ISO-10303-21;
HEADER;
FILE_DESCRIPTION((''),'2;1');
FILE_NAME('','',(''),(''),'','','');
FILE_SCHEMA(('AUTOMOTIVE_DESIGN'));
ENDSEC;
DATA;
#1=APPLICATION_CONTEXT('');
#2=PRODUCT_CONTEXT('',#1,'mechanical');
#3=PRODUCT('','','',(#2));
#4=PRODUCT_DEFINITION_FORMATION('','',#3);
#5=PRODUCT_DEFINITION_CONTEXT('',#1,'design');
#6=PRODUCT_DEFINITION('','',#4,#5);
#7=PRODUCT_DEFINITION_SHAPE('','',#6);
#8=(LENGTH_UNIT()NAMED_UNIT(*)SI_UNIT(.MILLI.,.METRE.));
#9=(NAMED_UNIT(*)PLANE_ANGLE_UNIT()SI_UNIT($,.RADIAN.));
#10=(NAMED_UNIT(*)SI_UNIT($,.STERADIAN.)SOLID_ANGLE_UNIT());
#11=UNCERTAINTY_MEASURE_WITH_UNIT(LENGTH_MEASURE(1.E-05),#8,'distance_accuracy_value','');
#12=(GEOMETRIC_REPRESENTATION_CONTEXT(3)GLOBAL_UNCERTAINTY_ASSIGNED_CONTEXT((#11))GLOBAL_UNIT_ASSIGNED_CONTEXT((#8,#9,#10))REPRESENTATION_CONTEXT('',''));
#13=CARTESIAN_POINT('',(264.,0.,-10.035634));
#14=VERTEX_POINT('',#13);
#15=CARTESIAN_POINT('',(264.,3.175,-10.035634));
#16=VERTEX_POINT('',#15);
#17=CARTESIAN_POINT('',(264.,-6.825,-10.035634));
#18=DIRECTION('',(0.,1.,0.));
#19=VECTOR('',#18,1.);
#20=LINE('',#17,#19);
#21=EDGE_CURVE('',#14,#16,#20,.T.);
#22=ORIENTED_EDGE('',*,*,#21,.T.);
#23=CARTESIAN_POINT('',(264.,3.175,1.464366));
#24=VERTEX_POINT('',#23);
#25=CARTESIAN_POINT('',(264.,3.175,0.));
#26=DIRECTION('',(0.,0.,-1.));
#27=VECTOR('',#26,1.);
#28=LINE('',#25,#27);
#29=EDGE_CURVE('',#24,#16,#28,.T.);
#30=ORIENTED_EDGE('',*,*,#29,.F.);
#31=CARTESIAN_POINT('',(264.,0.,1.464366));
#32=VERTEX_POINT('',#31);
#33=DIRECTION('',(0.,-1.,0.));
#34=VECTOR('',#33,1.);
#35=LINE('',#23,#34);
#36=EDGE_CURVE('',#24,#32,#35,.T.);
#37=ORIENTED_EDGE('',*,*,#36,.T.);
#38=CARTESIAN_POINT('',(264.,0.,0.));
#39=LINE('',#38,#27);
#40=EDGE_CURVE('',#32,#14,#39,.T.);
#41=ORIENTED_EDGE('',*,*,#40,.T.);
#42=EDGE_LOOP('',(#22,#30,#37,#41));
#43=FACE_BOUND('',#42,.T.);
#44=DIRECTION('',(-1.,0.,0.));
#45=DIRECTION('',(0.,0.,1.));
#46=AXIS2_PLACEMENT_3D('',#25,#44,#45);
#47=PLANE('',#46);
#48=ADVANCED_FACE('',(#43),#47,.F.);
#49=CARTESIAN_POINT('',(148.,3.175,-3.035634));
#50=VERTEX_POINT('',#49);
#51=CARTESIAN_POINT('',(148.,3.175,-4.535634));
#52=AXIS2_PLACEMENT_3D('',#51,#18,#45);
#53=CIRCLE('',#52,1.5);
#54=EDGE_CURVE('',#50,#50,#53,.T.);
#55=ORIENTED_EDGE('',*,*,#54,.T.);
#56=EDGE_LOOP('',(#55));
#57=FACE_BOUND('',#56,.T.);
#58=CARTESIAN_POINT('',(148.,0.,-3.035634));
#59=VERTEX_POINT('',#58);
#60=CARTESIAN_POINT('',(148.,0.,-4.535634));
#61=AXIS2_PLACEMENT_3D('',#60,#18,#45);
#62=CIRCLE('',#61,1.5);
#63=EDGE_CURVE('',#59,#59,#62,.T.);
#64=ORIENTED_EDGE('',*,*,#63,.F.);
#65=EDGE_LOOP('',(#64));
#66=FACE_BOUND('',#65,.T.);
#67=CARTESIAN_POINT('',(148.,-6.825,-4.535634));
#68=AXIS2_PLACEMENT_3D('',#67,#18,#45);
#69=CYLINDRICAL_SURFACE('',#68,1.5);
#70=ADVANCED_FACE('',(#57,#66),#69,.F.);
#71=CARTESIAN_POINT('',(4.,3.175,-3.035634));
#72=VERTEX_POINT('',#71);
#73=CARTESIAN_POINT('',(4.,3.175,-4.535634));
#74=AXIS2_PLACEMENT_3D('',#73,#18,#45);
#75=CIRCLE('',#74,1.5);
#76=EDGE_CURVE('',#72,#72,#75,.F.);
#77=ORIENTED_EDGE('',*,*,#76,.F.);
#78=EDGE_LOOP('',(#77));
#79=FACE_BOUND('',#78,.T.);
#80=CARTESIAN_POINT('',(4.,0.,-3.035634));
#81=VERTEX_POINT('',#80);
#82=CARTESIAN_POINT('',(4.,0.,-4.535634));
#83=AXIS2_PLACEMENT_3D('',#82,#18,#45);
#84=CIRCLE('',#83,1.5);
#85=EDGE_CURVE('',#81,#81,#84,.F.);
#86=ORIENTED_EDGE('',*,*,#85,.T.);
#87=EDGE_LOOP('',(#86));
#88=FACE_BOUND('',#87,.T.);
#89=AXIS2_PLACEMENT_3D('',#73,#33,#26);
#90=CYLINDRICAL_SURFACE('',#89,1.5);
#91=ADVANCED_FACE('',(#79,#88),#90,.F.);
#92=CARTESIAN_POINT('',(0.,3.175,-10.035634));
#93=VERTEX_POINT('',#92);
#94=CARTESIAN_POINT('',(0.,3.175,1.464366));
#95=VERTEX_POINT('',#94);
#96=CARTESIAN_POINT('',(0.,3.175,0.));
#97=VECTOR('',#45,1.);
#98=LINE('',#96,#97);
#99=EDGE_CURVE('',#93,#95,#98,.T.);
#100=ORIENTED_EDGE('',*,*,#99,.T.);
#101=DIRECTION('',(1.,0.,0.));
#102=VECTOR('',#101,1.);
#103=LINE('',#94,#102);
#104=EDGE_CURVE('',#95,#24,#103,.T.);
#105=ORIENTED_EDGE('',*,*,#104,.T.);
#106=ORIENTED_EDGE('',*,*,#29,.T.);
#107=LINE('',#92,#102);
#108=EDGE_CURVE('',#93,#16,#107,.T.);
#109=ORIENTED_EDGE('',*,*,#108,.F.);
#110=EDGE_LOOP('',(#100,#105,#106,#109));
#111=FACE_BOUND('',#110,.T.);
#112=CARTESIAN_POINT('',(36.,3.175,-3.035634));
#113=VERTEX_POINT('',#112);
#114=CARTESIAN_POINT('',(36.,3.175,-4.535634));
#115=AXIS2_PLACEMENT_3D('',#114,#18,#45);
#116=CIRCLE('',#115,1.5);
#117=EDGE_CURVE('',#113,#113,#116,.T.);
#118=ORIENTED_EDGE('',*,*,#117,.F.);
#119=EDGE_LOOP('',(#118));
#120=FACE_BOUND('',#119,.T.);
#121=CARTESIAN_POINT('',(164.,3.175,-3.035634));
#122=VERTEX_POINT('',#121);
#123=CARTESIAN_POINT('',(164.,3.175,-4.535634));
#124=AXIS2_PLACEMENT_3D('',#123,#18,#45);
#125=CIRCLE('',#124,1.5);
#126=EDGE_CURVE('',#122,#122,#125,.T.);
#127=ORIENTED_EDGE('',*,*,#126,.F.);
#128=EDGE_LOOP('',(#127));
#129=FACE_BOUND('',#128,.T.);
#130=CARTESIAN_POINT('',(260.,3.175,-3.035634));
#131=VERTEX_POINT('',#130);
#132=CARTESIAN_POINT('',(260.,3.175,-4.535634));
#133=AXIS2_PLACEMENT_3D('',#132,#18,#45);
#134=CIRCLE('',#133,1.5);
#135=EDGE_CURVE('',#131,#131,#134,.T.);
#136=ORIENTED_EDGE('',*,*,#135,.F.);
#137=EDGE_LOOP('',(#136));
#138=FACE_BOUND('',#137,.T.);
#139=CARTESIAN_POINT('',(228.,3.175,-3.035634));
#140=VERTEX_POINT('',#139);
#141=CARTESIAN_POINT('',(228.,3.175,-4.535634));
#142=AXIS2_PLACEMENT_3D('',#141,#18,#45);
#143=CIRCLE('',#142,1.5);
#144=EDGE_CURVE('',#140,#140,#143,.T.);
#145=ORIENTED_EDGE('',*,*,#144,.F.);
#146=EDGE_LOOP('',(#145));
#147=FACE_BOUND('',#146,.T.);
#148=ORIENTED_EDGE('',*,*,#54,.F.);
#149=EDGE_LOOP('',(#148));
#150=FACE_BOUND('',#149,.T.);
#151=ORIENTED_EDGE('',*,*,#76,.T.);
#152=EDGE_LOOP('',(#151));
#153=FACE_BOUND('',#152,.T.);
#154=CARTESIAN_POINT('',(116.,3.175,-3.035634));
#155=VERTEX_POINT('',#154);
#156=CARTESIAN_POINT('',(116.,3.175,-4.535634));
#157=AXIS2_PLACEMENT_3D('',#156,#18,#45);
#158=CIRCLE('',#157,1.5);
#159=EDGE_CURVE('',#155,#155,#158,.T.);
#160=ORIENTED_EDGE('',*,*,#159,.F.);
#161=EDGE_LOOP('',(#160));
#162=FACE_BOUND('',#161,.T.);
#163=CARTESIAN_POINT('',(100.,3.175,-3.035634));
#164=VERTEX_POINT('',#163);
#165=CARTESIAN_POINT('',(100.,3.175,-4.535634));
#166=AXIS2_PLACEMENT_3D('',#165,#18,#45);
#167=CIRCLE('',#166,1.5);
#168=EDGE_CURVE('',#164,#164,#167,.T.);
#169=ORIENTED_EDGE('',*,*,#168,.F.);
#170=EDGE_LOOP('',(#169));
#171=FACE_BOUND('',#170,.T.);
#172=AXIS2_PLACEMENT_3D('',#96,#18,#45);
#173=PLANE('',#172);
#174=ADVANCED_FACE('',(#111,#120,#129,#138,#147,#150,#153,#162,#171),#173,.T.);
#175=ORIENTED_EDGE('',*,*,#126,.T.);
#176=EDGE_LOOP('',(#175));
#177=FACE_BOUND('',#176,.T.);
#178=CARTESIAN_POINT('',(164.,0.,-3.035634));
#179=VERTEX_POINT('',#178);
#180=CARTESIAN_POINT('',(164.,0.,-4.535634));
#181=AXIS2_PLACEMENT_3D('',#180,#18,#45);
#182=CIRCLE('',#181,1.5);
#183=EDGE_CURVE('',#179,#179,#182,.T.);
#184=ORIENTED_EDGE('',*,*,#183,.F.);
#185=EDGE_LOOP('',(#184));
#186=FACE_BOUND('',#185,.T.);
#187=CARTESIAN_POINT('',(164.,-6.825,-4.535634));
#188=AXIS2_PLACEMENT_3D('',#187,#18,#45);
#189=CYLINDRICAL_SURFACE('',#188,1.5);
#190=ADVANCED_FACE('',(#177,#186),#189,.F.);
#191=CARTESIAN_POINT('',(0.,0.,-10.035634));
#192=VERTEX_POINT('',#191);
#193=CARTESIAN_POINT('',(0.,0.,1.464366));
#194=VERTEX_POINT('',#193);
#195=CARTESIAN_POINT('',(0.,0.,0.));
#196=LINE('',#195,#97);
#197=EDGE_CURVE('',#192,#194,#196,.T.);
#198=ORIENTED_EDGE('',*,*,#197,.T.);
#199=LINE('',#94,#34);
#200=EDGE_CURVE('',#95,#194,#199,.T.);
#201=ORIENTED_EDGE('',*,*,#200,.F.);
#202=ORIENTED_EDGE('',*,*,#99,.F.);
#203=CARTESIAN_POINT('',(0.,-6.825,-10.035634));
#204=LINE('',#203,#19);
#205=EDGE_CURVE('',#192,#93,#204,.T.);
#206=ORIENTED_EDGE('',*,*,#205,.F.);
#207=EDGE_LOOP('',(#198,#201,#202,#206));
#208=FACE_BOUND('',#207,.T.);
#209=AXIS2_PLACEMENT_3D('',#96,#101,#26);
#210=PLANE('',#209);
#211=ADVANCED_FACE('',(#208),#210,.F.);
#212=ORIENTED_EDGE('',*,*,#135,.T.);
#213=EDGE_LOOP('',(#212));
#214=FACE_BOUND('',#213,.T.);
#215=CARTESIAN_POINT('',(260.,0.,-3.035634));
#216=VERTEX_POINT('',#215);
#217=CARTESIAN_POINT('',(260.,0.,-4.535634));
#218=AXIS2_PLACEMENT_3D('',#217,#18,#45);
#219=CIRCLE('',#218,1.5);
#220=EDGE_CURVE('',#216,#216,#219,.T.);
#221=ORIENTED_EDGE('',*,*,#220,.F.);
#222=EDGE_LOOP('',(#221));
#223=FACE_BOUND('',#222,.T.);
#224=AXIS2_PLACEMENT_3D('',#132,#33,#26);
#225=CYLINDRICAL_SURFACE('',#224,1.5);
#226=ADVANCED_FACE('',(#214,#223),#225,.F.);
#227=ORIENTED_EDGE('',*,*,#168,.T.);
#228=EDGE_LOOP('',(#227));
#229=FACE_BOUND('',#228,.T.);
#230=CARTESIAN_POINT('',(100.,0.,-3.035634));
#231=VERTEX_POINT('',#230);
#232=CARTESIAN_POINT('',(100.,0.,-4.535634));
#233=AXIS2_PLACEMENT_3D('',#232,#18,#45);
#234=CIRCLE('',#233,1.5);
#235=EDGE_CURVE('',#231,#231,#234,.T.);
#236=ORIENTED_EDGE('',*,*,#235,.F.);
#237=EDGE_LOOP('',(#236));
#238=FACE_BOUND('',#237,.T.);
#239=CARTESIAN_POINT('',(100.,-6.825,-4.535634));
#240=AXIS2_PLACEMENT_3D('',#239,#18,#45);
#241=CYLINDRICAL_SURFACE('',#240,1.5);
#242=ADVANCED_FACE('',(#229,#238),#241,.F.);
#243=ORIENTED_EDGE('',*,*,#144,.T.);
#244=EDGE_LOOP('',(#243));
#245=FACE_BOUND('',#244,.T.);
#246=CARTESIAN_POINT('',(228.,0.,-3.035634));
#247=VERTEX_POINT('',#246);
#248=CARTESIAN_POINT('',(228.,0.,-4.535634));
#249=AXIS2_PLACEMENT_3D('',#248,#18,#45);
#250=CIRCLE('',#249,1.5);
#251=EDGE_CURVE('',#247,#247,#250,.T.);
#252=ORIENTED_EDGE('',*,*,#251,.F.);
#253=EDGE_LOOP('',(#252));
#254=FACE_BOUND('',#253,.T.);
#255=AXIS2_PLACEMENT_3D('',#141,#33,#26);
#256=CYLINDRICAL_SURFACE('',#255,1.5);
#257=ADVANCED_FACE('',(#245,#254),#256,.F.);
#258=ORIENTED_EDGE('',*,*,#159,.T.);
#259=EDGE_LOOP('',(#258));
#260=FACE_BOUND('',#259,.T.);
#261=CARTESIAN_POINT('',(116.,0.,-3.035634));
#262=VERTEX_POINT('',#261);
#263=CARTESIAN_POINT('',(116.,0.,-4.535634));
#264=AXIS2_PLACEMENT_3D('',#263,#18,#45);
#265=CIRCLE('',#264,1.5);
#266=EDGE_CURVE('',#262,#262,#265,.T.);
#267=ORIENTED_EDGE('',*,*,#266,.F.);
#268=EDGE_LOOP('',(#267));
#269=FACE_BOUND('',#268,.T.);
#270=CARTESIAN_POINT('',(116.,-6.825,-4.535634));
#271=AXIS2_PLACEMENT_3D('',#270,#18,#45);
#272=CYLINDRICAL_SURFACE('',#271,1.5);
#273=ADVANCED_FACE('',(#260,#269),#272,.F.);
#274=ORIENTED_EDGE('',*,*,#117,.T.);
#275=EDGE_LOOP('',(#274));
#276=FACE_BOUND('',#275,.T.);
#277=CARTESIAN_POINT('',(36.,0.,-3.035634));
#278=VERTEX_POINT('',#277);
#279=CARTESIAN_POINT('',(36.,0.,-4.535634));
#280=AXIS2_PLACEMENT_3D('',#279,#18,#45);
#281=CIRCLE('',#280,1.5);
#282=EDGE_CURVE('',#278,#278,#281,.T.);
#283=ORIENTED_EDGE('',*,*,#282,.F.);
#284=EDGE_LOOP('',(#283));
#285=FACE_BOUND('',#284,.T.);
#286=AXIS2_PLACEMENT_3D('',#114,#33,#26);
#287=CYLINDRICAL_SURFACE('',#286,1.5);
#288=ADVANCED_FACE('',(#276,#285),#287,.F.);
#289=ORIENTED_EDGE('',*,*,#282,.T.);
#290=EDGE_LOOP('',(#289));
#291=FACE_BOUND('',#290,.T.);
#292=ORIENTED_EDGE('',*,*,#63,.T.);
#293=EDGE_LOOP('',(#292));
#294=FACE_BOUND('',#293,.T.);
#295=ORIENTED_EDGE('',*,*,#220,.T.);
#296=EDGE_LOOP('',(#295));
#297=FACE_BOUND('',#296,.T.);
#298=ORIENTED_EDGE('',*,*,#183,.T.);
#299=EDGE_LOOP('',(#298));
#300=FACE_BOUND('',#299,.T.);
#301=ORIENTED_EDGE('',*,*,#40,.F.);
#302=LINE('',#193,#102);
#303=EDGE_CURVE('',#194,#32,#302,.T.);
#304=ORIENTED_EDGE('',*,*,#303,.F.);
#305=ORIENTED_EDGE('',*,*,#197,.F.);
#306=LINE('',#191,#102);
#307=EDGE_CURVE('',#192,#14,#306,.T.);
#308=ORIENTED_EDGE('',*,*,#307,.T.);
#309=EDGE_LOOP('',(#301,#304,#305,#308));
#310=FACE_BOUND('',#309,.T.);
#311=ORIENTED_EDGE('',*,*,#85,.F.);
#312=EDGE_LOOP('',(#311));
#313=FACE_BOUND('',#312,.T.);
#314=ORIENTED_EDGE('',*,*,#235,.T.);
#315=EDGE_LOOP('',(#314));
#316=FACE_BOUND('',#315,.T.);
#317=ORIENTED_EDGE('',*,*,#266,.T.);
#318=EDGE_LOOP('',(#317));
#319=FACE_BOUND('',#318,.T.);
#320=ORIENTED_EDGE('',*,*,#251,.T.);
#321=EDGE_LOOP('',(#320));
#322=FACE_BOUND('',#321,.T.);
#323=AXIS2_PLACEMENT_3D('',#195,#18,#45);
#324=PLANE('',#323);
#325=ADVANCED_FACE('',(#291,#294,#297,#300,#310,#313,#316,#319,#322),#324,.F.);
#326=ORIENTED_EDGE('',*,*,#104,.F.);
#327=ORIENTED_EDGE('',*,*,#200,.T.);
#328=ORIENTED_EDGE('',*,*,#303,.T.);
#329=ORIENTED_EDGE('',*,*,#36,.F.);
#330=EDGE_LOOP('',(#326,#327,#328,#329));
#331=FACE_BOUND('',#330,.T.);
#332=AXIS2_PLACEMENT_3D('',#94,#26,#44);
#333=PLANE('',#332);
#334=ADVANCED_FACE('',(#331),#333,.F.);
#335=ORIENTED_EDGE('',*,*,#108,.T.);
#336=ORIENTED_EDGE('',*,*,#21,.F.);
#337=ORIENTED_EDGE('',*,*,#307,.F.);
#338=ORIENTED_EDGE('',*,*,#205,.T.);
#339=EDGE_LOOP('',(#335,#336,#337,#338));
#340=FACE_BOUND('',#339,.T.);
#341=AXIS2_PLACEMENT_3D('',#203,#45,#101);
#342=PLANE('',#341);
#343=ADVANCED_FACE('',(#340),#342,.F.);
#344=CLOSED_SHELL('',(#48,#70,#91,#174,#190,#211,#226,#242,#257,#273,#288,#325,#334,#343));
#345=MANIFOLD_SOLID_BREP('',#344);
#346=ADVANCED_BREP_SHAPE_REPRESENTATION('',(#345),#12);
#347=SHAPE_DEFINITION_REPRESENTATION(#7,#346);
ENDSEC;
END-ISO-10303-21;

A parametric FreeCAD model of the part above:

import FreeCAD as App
import Part
import Sketcher
from FreeCAD import Vector
Q = App.Units.Quantity


def add_polygon(sketch, points):
    """Adds a closed chain of lines whose ends are joined by coincident constraints."""
    first, n = sketch.GeometryCount, len(points)
    for a, b in zip(points, points[1:] + points[:1]):
        sketch.addGeometry(Part.LineSegment(App.Vector(*a, 0), App.Vector(*b, 0)), False)
    for i in range(n):
        sketch.addConstraint(Sketcher.Constraint("Coincident", first + i, 2, first + (i + 1) % n, 1))

doc = App.newDocument("Part")
body = doc.addObject("PartDesign::Body", "Body")

sketch1 = body.newObject("Sketcher::SketchObject", "Sketch")
sketch1.AttachmentSupport = (doc.getObject("XZ_Plane"), [""])
sketch1.MapMode = "FlatFace"
add_polygon(sketch1, [(0, 1.5), (264, 1.5), (264, -25.5), (0, -25.5)])
sketch1.addGeometry(Part.Circle(Vector(4, -4.5, 0), Vector(0, 0, 1), 1.5), False)
sketch1.addGeometry(Part.Circle(Vector(36, -4.5, 0), Vector(0, 0, 1), 1.5), False)
sketch1.addGeometry(Part.Circle(Vector(228, -4.5, 0), Vector(0, 0, 1), 1.5), False)
sketch1.addGeometry(Part.Circle(Vector(260, -4.5, 0), Vector(0, 0, 1), 1.5), False)
sketch1.addGeometry(Part.Circle(Vector(68, -21.5, 0), Vector(0, 0, 1), 2), False)
sketch1.addGeometry(Part.Circle(Vector(100, -21.5, 0), Vector(0, 0, 1), 2), False)
sketch1.addGeometry(Part.Circle(Vector(132, -21.5, 0), Vector(0, 0, 1), 2), False)
sketch1.addGeometry(Part.Circle(Vector(164, -21.5, 0), Vector(0, 0, 1), 2), False)
sketch1.addGeometry(Part.Circle(Vector(196, -21.5, 0), Vector(0, 0, 1), 2), False)
sketch1.addConstraint([
    Sketcher.Constraint("Horizontal", 0),
    Sketcher.Constraint("Vertical", 1),
    Sketcher.Constraint("Horizontal", 2),
    Sketcher.Constraint("Vertical", 3),
    Sketcher.Constraint("Equal", 4, 5),
    Sketcher.Constraint("Equal", 5, 6),
    Sketcher.Constraint("Equal", 6, 7),
    Sketcher.Constraint("Equal", 8, 9),
    Sketcher.Constraint("Equal", 9, 10),
    Sketcher.Constraint("Equal", 10, 11),
    Sketcher.Constraint("Equal", 11, 12),
    Sketcher.Constraint("PointOnObject", 2, 2, -2),
    Sketcher.Constraint("Horizontal", 4, 3, 5, 3),
    Sketcher.Constraint("Horizontal", 5, 3, 6, 3),
    Sketcher.Constraint("Horizontal", 6, 3, 7, 3),
    Sketcher.Constraint("Horizontal", 8, 3, 9, 3),
    Sketcher.Constraint("Horizontal", 9, 3, 10, 3),
    Sketcher.Constraint("Horizontal", 10, 3, 11, 3),
    Sketcher.Constraint("Horizontal", 11, 3, 12, 3),
    Sketcher.Constraint("Diameter", 4, Q("3 mm")),
    Sketcher.Constraint("Diameter", 8, Q("4 mm")),
    Sketcher.Constraint("DistanceX", 0, 1, 0, 2, Q("264 mm")),
    Sketcher.Constraint("DistanceY", 1, 2, 1, 1, Q("27 mm")),
    Sketcher.Constraint("DistanceX", -1, 1, 4, 3, Q("4 mm")),
    Sketcher.Constraint("DistanceX", -1, 1, 5, 3, Q("36 mm")),
    Sketcher.Constraint("DistanceX", -1, 1, 6, 3, Q("228 mm")),
    Sketcher.Constraint("DistanceX", -1, 1, 7, 3, Q("260 mm")),
    Sketcher.Constraint("DistanceX", -1, 1, 8, 3, Q("68 mm")),
    Sketcher.Constraint("DistanceX", -1, 1, 9, 3, Q("100 mm")),
    Sketcher.Constraint("DistanceX", -1, 1, 10, 3, Q("132 mm")),
    Sketcher.Constraint("DistanceX", -1, 1, 11, 3, Q("164 mm")),
    Sketcher.Constraint("DistanceX", -1, 1, 12, 3, Q("196 mm")),
    Sketcher.Constraint("DistanceY", 8, 3, 5, 3, Q("17 mm")),
    Sketcher.Constraint("DistanceY", 7, 3, 0, 2, Q("6 mm")),
    Sketcher.Constraint("DistanceY", 4, 3, -1, 1, Q("4.535634 mm")),
])
pad1 = body.newObject("PartDesign::Pad", "Pad")
pad1.Profile = sketch1
pad1.Length = 3.175
pad1.Reversed = True

sketch2 = body.newObject("Sketcher::SketchObject", "Sketch001")
sketch2.AttachmentSupport = (doc.getObject("XZ_Plane"), [""])
sketch2.MapMode = "FlatFace"
sketch2.AttachmentOffset = App.Placement(Vector(0, 0, -3.175), App.Rotation())
sketch2.addGeometry([
    Part.Circle(Vector(116, -4.5, 0), Vector(0, 0, 1), 1.5),
    Part.Circle(Vector(148, -4.5, 0), Vector(0, 0, 1), 1.5),
    Part.Circle(Vector(100, -4.5, 0), Vector(0, 0, 1), 1.5),
    Part.Circle(Vector(164, -4.5, 0), Vector(0, 0, 1), 1.5),
], False)
sketch2.addConstraint([
    Sketcher.Constraint("Equal", 0, 1),
    Sketcher.Constraint("Equal", 1, 2),
    Sketcher.Constraint("Equal", 2, 3),
    Sketcher.Constraint("Horizontal", 0, 3, 1, 3),
    Sketcher.Constraint("Horizontal", 1, 3, 2, 3),
    Sketcher.Constraint("Horizontal", 2, 3, 3, 3),
    Sketcher.Constraint("Diameter", 0, Q("3 mm")),
    Sketcher.Constraint("DistanceX", -1, 1, 0, 3, Q("116 mm")),
    Sketcher.Constraint("DistanceX", -1, 1, 1, 3, Q("148 mm")),
    Sketcher.Constraint("DistanceX", -1, 1, 2, 3, Q("100 mm")),
    Sketcher.Constraint("DistanceX", -1, 1, 3, 3, Q("164 mm")),
    Sketcher.Constraint("DistanceY", 0, 3, -1, 1, Q("4.535634 mm")),
])
pocket1 = body.newObject("PartDesign::Pocket", "Pocket")
pocket1.Profile = sketch2
pocket1.Length = 10
pocket1.Reversed = True

sketch3 = body.newObject("Sketcher::SketchObject", "Sketch002")
sketch3.AttachmentSupport = (doc.getObject("XZ_Plane"), [""])
sketch3.MapMode = "FlatFace"
sketch3.AttachmentOffset = App.Placement(Vector(0, 0, -3.175), App.Rotation())
add_polygon(sketch3, [(0, -26), (0, -12), (264, -12), (264, -26)])
sketch3.addConstraint([
    Sketcher.Constraint("Vertical", 0),
    Sketcher.Constraint("Horizontal", 1),
    Sketcher.Constraint("Vertical", 2),
    Sketcher.Constraint("Horizontal", 3),
    Sketcher.Constraint("PointOnObject", 0, 2, -2),
    Sketcher.Constraint("DistanceX", 1, 1, 1, 2, Q("264 mm")),
    Sketcher.Constraint("DistanceY", 0, 1, 0, 2, Q("13.5 mm")),
    Sketcher.Constraint("DistanceY", 0, 2, -1, 1, Q("12.035634 mm")),
])
pocket2 = body.newObject("PartDesign::Pocket", "Pocket001")
pocket2.Profile = sketch3
pocket2.Length = 10
pocket2.Reversed = True

sketch4 = body.newObject("Sketcher::SketchObject", "Sketch003")
sketch4.AttachmentSupport = (doc.getObject("XZ_Plane"), [""])
sketch4.MapMode = "FlatFace"
sketch4.AttachmentOffset = App.Placement(Vector(0, 0, -3.175), App.Rotation())
add_polygon(sketch4, [(0, -12), (0, -10), (264, -10), (264, -12)])
sketch4.addConstraint([
    Sketcher.Constraint("Vertical", 0),
    Sketcher.Constraint("Horizontal", 1),
    Sketcher.Constraint("Vertical", 2),
    Sketcher.Constraint("Horizontal", 3),
    Sketcher.Constraint("PointOnObject", 0, 2, -2),
    Sketcher.Constraint("DistanceX", 1, 1, 1, 2, Q("264 mm")),
    Sketcher.Constraint("DistanceY", 0, 1, 0, 2, Q("2 mm")),
    Sketcher.Constraint("DistanceY", 0, 2, -1, 1, Q("10.035634 mm")),
])
pocket3 = body.newObject("PartDesign::Pocket", "Pocket002")
pocket3.Profile = sketch4
pocket3.Length = 10
pocket3.Reversed = True

doc.recompute()
